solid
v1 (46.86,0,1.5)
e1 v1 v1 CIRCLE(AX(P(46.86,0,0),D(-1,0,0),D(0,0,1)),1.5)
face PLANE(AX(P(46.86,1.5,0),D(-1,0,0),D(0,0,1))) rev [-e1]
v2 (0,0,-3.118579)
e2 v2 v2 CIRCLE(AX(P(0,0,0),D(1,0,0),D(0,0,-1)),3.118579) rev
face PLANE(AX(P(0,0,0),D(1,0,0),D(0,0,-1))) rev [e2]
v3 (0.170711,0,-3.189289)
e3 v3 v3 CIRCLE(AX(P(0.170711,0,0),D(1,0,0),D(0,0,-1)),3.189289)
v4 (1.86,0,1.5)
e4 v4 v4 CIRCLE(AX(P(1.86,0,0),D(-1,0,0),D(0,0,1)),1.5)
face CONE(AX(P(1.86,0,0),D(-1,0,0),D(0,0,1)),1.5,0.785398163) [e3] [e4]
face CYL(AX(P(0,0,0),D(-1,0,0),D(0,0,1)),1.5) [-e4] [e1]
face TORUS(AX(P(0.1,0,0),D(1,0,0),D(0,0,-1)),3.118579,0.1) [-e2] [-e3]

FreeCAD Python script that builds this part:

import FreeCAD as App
import Part
import Sketcher

V = App.Vector
Q = App.Units.Quantity


def edges_at(feature, points):
    """Names of the edges that pass closest to the given points."""
    edges = feature.Shape.Edges
    near = lambda p: min(range(len(edges)), key=lambda i: edges[i].distToShape(Part.Vertex(*p))[0])
    return sorted({f"Edge{near(p) + 1}" for p in points})


def add_polygon(sketch, points):
    """Adds a closed chain of lines whose ends are joined by coincident constraints."""
    first, n = sketch.GeometryCount, len(points)
    for a, b in zip(points, points[1:] + points[:1]):
        sketch.addGeometry(Part.LineSegment(App.Vector(*a, 0), App.Vector(*b, 0)), False)
    for i in range(n):
        sketch.addConstraint(Sketcher.Constraint("Coincident", first + i, 2, first + (i + 1) % n, 1))

doc = App.newDocument("Part")
body = doc.addObject("PartDesign::Body", "Body")

sketch1 = body.newObject("Sketcher::SketchObject", "Sketch")
sketch1.AttachmentSupport = (doc.getObject("XY_Plane"), [""])
sketch1.MapMode = "FlatFace"
add_polygon(sketch1, [(0, 3.4), (0, 0), (46.9, 0), (46.9, 1.5), (1.9, 1.5)])
sketch1.addConstraint([
    Sketcher.Constraint("Vertical", 0),
    Sketcher.Constraint("Horizontal", 1),
    Sketcher.Constraint("Vertical", 2),
    Sketcher.Constraint("Horizontal", 3),
    Sketcher.Constraint("Coincident", 0, 2, -1, 1),
    Sketcher.Constraint("DistanceX", 3, 2, 3, 1, Q("45 mm")),
    Sketcher.Constraint("Angle", 4, Q("135 deg")),
    Sketcher.Constraint("DistanceY", 2, 1, 2, 2, Q("1.5 mm")),
    Sketcher.Constraint("DistanceX", 1, 1, 1, 2, Q("46.86 mm")),
])
revolution = body.newObject("PartDesign::Revolution", "Revolution")
revolution.Profile = sketch1
revolution.ReferenceAxis = (sketch1, ["H_Axis"])
revolution.Angle = 360
doc.recompute()

fillet = body.newObject("PartDesign::Fillet", "Fillet")
fillet.Base = (revolution, edges_at(revolution, [(0, 0, -3.36)]))
fillet.Radius = 0.1

doc.recompute()
